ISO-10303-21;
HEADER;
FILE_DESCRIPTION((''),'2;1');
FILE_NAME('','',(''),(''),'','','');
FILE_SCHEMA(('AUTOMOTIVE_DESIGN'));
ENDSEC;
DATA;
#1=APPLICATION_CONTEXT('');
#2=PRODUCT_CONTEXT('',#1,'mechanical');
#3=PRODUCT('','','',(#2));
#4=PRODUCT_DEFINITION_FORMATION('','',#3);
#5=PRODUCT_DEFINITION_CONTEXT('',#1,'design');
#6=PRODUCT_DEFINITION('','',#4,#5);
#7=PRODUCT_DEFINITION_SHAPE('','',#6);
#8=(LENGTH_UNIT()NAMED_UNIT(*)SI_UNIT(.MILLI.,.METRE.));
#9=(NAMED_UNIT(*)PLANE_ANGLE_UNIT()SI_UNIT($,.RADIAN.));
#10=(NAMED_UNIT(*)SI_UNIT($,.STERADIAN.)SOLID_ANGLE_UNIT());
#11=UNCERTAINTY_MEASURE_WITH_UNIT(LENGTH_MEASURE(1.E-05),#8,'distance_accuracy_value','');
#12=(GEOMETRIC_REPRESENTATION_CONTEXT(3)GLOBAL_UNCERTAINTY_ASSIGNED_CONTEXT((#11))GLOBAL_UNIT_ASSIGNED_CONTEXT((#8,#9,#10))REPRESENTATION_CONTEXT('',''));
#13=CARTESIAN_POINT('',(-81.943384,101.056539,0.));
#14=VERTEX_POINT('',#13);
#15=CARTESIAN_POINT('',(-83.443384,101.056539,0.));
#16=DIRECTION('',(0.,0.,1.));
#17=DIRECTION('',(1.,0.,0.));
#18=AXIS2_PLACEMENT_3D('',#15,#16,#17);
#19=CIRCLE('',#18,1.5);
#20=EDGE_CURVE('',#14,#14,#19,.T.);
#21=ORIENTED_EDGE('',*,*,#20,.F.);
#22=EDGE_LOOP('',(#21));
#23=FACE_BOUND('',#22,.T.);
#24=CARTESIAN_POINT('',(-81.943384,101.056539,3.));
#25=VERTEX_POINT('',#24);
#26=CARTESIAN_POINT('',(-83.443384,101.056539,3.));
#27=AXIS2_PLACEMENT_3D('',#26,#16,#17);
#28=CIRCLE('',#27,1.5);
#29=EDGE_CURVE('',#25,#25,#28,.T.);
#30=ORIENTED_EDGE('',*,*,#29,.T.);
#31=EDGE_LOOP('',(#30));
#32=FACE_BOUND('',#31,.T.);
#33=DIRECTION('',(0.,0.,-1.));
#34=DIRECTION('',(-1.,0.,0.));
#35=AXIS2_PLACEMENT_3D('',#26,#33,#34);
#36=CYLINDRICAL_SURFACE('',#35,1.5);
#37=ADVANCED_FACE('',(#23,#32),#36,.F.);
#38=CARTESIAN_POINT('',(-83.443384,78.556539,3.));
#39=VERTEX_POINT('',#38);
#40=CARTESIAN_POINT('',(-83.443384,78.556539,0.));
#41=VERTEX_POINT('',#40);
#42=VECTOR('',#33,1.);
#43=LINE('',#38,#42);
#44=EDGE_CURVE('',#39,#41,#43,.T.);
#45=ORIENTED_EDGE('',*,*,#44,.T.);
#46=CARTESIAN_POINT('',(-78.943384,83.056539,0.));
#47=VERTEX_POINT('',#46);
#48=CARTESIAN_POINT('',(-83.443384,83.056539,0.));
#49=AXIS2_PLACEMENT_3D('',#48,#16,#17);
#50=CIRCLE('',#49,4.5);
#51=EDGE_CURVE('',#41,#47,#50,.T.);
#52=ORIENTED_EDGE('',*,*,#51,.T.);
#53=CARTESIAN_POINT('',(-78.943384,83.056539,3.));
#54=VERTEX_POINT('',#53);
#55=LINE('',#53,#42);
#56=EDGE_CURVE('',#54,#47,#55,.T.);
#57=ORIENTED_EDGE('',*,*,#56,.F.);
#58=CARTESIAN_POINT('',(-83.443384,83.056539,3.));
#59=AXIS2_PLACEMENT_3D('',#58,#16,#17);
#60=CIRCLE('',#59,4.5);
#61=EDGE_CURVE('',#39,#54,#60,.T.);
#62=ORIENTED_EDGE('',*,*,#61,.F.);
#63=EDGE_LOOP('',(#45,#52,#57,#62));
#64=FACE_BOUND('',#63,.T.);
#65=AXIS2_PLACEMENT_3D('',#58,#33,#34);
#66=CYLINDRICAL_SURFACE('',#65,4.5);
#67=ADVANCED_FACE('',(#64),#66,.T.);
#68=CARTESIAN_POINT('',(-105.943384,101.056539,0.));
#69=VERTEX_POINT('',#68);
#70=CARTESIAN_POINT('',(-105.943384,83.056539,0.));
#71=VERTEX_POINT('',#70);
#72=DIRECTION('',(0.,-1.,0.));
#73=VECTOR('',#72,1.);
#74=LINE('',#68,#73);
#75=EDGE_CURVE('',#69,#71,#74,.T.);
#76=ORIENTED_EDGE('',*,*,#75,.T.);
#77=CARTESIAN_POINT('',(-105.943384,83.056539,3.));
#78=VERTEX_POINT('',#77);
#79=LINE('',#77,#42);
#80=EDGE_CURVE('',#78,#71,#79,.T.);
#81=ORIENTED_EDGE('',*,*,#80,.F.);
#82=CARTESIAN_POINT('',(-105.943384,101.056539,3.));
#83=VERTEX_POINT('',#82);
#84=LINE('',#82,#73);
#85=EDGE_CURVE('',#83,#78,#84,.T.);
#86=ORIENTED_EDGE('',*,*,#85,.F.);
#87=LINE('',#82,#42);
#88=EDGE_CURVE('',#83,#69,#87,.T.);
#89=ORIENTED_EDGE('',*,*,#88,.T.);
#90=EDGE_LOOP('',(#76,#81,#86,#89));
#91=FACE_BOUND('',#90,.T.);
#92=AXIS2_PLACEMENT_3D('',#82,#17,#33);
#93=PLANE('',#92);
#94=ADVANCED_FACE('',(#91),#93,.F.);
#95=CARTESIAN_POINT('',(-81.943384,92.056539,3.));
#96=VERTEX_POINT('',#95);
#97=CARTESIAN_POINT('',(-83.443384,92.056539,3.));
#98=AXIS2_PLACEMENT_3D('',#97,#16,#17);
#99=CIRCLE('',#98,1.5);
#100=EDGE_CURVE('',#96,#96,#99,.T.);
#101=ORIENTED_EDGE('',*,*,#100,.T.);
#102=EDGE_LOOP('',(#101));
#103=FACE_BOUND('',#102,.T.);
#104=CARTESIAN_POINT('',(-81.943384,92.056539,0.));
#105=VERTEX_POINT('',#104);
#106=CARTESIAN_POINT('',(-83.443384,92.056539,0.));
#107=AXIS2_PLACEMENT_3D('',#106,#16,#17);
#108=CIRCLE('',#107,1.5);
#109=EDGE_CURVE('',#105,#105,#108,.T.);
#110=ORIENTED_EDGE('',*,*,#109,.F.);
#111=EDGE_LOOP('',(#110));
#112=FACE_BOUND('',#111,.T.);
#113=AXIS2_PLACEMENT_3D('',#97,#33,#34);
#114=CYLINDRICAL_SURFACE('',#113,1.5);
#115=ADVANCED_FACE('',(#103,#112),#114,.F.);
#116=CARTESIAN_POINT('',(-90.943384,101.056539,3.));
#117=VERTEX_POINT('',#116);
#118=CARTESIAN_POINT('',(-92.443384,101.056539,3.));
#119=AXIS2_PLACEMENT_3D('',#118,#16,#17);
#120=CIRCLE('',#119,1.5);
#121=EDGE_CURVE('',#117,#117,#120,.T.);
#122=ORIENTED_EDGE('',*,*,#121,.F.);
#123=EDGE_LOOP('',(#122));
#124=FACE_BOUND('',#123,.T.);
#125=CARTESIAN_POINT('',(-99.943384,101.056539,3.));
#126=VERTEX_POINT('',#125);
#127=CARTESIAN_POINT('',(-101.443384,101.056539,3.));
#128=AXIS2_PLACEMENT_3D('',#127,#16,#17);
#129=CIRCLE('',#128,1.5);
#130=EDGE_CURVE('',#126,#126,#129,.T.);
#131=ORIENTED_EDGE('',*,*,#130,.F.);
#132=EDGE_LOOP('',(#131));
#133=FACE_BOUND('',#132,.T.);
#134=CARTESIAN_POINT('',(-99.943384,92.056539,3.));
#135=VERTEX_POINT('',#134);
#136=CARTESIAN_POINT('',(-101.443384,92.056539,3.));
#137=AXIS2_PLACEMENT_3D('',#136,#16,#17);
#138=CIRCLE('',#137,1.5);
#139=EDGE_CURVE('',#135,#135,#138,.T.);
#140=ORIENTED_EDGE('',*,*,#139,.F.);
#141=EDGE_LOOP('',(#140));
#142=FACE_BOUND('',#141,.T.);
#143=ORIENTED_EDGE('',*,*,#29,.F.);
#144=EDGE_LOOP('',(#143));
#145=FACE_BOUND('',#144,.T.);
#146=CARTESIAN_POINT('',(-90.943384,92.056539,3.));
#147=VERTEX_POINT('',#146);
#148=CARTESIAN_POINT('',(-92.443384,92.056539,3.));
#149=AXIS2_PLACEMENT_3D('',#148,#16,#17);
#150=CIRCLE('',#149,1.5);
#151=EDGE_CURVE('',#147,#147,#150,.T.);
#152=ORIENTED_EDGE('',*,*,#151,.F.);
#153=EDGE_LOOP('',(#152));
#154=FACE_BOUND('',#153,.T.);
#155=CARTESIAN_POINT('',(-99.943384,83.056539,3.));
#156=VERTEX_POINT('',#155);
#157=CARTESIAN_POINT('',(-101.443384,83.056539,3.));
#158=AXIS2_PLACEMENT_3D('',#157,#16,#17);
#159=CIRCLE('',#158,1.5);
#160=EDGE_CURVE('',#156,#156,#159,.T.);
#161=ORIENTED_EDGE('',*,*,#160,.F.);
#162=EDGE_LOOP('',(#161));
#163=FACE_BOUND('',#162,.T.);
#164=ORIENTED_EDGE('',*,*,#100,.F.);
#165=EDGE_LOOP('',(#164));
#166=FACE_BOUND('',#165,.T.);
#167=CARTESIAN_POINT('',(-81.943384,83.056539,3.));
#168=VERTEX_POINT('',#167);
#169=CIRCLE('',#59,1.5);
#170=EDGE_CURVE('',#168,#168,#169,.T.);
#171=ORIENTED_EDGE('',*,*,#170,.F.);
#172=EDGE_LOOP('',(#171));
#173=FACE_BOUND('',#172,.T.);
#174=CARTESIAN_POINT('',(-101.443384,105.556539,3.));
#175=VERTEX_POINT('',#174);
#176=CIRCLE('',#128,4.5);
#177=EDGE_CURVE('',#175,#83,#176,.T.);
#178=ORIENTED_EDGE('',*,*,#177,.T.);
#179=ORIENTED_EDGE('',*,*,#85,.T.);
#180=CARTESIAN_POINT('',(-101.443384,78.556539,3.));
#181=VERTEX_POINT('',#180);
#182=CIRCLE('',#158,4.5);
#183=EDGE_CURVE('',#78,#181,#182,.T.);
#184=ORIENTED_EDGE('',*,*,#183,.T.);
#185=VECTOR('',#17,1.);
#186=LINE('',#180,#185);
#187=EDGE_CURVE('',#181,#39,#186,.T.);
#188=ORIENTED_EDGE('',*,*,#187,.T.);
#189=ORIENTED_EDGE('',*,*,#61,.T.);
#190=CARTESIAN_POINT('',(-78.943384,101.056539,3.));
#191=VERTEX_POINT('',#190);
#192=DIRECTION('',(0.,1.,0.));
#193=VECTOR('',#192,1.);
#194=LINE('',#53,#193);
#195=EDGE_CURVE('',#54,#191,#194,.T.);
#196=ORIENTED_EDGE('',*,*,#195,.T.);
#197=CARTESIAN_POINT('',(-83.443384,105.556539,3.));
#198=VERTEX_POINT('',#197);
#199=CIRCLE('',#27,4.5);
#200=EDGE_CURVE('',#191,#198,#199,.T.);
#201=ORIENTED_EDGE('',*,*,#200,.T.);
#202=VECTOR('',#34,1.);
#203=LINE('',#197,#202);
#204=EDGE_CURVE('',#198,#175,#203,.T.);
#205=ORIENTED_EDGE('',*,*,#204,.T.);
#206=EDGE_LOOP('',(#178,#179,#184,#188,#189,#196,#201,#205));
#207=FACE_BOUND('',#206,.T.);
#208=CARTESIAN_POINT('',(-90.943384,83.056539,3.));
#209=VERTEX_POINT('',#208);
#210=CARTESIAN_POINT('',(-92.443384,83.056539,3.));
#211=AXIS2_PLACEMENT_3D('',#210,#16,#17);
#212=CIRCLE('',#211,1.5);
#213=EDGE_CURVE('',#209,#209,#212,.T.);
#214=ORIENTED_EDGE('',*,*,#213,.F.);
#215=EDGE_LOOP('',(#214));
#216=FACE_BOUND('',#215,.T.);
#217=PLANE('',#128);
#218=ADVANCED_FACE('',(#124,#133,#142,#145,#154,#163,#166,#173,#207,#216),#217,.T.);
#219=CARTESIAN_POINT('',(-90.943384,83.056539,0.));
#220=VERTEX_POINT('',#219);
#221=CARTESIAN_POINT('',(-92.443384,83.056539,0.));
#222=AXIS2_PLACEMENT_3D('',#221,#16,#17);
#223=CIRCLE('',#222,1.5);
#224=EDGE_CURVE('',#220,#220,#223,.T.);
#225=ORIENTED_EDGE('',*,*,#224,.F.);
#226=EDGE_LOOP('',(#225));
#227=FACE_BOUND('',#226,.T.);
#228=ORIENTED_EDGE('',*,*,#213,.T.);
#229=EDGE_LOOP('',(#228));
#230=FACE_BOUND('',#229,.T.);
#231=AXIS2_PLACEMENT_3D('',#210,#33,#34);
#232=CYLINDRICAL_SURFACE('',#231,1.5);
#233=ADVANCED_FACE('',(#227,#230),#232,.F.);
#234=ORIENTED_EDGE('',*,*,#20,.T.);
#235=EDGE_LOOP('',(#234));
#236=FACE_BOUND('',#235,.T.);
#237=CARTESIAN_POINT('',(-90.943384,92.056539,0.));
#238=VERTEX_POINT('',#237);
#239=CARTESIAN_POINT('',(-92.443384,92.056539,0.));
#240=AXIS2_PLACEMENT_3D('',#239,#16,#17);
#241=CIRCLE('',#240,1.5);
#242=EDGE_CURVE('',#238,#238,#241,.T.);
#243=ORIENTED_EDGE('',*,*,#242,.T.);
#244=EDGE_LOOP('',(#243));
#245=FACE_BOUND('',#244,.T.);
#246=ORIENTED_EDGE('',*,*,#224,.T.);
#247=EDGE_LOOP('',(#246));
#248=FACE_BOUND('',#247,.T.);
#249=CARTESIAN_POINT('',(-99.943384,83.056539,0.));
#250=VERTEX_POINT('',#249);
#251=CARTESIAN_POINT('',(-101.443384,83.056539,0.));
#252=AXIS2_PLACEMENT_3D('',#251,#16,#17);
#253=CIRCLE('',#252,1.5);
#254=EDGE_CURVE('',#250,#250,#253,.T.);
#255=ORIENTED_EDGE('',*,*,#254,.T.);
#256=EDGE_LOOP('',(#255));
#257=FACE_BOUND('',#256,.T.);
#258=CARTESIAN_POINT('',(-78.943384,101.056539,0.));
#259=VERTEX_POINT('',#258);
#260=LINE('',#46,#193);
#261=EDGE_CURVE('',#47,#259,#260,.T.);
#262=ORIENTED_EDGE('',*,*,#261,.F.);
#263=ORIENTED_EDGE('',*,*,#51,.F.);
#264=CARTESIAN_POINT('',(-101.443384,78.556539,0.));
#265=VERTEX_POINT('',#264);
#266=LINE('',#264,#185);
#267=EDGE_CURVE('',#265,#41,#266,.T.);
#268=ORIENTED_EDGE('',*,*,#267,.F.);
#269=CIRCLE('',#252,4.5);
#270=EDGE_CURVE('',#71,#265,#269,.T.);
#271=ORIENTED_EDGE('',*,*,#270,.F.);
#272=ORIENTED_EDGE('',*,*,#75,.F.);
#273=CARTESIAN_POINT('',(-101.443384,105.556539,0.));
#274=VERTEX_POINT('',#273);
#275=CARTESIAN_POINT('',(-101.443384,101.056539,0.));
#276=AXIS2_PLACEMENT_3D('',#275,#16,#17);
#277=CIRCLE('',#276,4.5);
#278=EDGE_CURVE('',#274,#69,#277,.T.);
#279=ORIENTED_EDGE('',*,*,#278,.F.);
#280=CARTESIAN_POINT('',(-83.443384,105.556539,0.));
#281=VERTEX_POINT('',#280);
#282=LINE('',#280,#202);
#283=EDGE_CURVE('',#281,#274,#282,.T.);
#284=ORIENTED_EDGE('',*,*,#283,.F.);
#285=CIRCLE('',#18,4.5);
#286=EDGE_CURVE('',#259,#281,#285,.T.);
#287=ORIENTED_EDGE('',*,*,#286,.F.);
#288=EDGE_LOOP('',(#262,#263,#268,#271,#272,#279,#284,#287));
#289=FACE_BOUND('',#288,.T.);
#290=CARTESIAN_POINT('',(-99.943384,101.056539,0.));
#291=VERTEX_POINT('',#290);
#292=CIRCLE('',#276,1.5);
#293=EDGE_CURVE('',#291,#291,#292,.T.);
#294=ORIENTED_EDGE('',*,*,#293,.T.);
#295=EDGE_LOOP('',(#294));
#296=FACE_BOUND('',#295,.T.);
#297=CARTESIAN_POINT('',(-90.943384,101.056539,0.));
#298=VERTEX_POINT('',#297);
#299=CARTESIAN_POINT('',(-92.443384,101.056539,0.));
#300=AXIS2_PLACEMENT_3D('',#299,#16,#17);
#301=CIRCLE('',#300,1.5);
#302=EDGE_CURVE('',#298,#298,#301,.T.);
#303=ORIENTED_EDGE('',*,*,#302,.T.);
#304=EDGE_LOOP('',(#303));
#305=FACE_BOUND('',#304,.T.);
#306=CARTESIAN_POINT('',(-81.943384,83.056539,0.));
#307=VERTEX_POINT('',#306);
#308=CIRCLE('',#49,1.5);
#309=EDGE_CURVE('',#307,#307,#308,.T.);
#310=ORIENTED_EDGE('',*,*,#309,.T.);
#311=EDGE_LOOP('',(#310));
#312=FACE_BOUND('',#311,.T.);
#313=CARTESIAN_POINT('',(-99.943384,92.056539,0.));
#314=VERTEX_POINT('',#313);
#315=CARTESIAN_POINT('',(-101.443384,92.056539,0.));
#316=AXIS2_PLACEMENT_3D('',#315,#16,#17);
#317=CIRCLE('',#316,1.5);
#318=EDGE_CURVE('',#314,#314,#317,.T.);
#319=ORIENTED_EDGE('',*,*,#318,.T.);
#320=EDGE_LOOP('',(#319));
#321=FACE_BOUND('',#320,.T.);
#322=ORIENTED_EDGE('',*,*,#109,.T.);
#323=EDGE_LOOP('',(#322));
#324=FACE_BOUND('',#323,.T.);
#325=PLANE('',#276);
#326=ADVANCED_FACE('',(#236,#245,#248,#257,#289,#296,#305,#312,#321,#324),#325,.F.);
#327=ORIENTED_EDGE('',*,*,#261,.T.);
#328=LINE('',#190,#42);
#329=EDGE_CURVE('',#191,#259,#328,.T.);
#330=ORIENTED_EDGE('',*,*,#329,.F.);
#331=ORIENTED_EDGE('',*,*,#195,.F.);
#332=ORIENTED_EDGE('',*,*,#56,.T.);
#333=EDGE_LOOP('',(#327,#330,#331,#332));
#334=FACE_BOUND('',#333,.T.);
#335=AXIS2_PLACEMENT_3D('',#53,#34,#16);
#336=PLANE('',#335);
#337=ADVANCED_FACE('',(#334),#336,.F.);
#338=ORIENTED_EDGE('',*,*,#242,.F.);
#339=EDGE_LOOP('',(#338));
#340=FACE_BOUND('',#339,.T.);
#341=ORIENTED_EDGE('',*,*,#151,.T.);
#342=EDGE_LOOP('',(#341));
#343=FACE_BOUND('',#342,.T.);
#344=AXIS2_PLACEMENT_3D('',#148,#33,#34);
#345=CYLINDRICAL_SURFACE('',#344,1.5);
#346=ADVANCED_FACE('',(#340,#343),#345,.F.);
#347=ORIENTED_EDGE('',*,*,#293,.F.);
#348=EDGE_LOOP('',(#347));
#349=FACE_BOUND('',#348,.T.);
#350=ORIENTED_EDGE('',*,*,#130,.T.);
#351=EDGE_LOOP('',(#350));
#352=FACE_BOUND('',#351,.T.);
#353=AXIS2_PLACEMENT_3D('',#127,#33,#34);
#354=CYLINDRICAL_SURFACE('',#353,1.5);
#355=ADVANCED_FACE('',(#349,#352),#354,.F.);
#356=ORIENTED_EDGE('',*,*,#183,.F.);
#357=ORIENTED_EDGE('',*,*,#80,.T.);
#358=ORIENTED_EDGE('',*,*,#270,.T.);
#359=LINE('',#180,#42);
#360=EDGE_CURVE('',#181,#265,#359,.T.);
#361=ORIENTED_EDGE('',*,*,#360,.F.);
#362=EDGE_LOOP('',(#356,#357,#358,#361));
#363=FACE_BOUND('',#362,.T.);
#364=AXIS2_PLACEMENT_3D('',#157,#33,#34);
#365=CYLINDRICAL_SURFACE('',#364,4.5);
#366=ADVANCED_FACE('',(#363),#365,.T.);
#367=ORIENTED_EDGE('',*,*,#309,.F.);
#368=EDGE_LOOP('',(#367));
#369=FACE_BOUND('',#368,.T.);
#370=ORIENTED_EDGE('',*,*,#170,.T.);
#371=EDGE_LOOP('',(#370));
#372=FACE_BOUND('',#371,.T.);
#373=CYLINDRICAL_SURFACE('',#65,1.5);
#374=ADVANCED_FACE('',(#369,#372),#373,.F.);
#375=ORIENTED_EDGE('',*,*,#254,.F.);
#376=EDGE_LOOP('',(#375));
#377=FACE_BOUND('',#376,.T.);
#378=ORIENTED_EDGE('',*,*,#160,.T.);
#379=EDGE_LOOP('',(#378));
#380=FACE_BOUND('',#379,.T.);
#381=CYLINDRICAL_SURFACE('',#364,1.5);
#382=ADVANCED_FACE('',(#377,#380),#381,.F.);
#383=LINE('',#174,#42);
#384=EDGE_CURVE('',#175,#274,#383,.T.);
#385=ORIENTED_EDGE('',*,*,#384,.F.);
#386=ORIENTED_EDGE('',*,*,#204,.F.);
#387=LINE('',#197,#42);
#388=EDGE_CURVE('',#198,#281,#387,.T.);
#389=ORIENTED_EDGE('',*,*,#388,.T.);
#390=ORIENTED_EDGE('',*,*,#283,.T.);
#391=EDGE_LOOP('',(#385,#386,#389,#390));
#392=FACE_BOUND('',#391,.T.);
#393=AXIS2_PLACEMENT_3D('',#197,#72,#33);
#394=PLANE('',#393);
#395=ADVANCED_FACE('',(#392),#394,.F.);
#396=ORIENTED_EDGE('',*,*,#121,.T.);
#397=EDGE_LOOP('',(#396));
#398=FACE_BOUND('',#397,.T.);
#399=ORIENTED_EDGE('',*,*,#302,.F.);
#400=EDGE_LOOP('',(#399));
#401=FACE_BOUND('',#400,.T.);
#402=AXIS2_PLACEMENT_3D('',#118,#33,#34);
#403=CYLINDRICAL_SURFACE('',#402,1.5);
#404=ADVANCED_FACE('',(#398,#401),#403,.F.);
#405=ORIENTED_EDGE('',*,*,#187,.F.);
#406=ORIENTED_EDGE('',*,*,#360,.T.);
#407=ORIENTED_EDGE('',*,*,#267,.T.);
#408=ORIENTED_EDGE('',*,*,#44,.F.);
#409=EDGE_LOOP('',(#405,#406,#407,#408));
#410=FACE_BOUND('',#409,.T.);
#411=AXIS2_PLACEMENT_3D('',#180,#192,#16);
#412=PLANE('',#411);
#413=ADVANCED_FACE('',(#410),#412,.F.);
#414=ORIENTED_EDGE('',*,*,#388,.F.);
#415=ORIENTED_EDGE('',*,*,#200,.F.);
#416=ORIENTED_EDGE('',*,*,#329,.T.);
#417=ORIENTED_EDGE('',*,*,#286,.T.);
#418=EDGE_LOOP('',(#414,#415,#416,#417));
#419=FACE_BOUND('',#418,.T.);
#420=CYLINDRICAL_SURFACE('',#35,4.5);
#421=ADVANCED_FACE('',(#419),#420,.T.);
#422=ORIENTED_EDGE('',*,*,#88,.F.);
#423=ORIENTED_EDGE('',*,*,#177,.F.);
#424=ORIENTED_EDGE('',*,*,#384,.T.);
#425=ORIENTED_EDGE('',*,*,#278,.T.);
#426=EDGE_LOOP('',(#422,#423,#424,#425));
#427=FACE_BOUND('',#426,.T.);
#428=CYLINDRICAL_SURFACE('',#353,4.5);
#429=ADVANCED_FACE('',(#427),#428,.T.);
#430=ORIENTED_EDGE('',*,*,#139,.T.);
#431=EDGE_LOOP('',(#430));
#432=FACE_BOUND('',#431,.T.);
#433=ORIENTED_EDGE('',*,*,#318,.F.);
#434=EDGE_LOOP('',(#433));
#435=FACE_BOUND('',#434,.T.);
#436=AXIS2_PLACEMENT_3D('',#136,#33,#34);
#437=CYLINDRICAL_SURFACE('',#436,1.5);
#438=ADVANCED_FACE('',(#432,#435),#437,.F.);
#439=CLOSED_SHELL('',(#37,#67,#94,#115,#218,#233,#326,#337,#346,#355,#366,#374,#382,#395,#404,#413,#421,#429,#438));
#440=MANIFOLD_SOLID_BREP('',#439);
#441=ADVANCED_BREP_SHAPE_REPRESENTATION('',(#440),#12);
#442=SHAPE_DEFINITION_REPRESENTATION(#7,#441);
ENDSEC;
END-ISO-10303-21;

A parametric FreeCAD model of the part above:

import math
import FreeCAD as App
import Part
import Sketcher
from FreeCAD import Vector

doc = App.newDocument("Part")
params = doc.addObject("Spreadsheet::Sheet", "Params")
for row, (alias, value) in enumerate([
    ("sketch1_diameter", "3 mm"),
    ("sketch1_radius", "4.5 mm"),
    ("sketch1_width", "18 mm"),
    ("pad1_length", "3 mm"),
], start=1):
    params.set(f"A{row}", alias)
    params.set(f"B{row}", "=" + value)
    params.setAlias(f"B{row}", alias)

body = doc.addObject("PartDesign::Body", "Body")

sketch1 = body.newObject("Sketcher::SketchObject", "Sketch")
sketch1.AttachmentSupport = (doc.getObject("XY_Plane"), [""])
sketch1.MapMode = "FlatFace"
sketch1.addGeometry([
    Part.LineSegment(Vector(-105.9, 101.1, 0), Vector(-105.9, 83.1, 0)),
    Part.ArcOfCircle(Part.Circle(Vector(-101.4, 83.1, 0), Vector(0, 0, 1), 4.5), math.radians(-180), math.radians(-90)),
    Part.LineSegment(Vector(-101.4, 78.6, 0), Vector(-83.4, 78.6, 0)),
    Part.ArcOfCircle(Part.Circle(Vector(-83.4, 83.1, 0), Vector(0, 0, 1), 4.5), math.radians(-90), math.radians(0)),
    Part.LineSegment(Vector(-78.9, 83.1, 0), Vector(-78.9, 101.1, 0)),
    Part.ArcOfCircle(Part.Circle(Vector(-83.4, 101.1, 0), Vector(0, 0, 1), 4.5), math.radians(0), math.radians(90)),
    Part.LineSegment(Vector(-83.4, 105.6, 0), Vector(-101.4, 105.6, 0)),
    Part.ArcOfCircle(Part.Circle(Vector(-101.4, 101.1, 0), Vector(0, 0, 1), 4.5), math.radians(90), math.radians(180)),
    Part.Circle(Vector(-101.4, 83.1, 0), Vector(0, 0, 1), 1.5),
    Part.Circle(Vector(-92.4, 83.1, 0), Vector(0, 0, 1), 1.5),
    Part.Circle(Vector(-83.4, 83.1, 0), Vector(0, 0, 1), 1.5),
    Part.Circle(Vector(-101.4, 92.1, 0), Vector(0, 0, 1), 1.5),
    Part.Circle(Vector(-101.4, 101.1, 0), Vector(0, 0, 1), 1.5),
    Part.Circle(Vector(-92.4, 92.1, 0), Vector(0, 0, 1), 1.5),
    Part.Circle(Vector(-83.4, 92.1, 0), Vector(0, 0, 1), 1.5),
    Part.Circle(Vector(-92.4, 101.1, 0), Vector(0, 0, 1), 1.5),
    Part.Circle(Vector(-83.4, 101.1, 0), Vector(0, 0, 1), 1.5),
], False)
sketch1.addConstraint([
    Sketcher.Constraint("Tangent", 0, 2, 1, 1),
    Sketcher.Constraint("Tangent", 1, 2, 2, 1),
    Sketcher.Constraint("Tangent", 2, 2, 3, 1),
    Sketcher.Constraint("Tangent", 3, 2, 4, 1),
    Sketcher.Constraint("Tangent", 4, 2, 5, 1),
    Sketcher.Constraint("Tangent", 5, 2, 6, 1),
    Sketcher.Constraint("Tangent", 6, 2, 7, 1),
    Sketcher.Constraint("Tangent", 7, 2, 0, 1),
    Sketcher.Constraint("Vertical", 0),
    Sketcher.Constraint("Horizontal", 2),
    Sketcher.Constraint("Vertical", 4),
    Sketcher.Constraint("Horizontal", 6),
    Sketcher.Constraint("Coincident", 8, 3, 1, 3),
    Sketcher.Constraint("Coincident", 10, 3, 3, 3),
    Sketcher.Constraint("Coincident", 12, 3, 7, 3),
    Sketcher.Constraint("Coincident", 16, 3, 5, 3),
    Sketcher.Constraint("Equal", 1, 3),
    Sketcher.Constraint("Equal", 3, 5),
    Sketcher.Constraint("Equal", 5, 7),
    Sketcher.Constraint("Equal", 8, 9),
    Sketcher.Constraint("Equal", 9, 10),
    Sketcher.Constraint("Equal", 10, 11),
    Sketcher.Constraint("Equal", 11, 12),
    Sketcher.Constraint("Equal", 12, 13),
    Sketcher.Constraint("Equal", 13, 14),
    Sketcher.Constraint("Equal", 14, 15),
    Sketcher.Constraint("Equal", 15, 16),
    Sketcher.Constraint("Horizontal", 8, 3, 9, 3),
    Sketcher.Constraint("Horizontal", 11, 3, 13, 3),
    Sketcher.Constraint("Horizontal", 13, 3, 14, 3),
    Sketcher.Constraint("Horizontal", 12, 3, 15, 3),
    Sketcher.Constraint("Vertical", 8, 3, 11, 3),
    Sketcher.Constraint("Vertical", 9, 3, 13, 3),
    Sketcher.Constraint("Vertical", 10, 3, 14, 3),
    Sketcher.Constraint("Vertical", 13, 3, 15, 3),
    Sketcher.Constraint("Equal", 6, 0),
    Sketcher.Constraint("Diameter", 8, 3.0),
    Sketcher.Constraint("Radius", 1, 4.5),
    Sketcher.Constraint("DistanceX", 2, 1, 2, 2, 18.0),
    Sketcher.Constraint("DistanceX", 1, 3, 9, 3, 9.0),
    Sketcher.Constraint("DistanceY", 1, 3, 11, 3, 9.0),
    Sketcher.Constraint("DistanceY", -1, 1, 1, 3, 83.056539),
    Sketcher.Constraint("DistanceX", 1, 3, -1, 1, 101.443384),
])
sketch1.setExpression("Constraints[36]", "Params.sketch1_diameter")
sketch1.setExpression("Constraints[37]", "Params.sketch1_radius")
sketch1.setExpression("Constraints[38]", "Params.sketch1_width")
pad1 = body.newObject("PartDesign::Pad", "Pad")
pad1.Profile = sketch1
pad1.setExpression("Length", "Params.pad1_length")

doc.recompute()
